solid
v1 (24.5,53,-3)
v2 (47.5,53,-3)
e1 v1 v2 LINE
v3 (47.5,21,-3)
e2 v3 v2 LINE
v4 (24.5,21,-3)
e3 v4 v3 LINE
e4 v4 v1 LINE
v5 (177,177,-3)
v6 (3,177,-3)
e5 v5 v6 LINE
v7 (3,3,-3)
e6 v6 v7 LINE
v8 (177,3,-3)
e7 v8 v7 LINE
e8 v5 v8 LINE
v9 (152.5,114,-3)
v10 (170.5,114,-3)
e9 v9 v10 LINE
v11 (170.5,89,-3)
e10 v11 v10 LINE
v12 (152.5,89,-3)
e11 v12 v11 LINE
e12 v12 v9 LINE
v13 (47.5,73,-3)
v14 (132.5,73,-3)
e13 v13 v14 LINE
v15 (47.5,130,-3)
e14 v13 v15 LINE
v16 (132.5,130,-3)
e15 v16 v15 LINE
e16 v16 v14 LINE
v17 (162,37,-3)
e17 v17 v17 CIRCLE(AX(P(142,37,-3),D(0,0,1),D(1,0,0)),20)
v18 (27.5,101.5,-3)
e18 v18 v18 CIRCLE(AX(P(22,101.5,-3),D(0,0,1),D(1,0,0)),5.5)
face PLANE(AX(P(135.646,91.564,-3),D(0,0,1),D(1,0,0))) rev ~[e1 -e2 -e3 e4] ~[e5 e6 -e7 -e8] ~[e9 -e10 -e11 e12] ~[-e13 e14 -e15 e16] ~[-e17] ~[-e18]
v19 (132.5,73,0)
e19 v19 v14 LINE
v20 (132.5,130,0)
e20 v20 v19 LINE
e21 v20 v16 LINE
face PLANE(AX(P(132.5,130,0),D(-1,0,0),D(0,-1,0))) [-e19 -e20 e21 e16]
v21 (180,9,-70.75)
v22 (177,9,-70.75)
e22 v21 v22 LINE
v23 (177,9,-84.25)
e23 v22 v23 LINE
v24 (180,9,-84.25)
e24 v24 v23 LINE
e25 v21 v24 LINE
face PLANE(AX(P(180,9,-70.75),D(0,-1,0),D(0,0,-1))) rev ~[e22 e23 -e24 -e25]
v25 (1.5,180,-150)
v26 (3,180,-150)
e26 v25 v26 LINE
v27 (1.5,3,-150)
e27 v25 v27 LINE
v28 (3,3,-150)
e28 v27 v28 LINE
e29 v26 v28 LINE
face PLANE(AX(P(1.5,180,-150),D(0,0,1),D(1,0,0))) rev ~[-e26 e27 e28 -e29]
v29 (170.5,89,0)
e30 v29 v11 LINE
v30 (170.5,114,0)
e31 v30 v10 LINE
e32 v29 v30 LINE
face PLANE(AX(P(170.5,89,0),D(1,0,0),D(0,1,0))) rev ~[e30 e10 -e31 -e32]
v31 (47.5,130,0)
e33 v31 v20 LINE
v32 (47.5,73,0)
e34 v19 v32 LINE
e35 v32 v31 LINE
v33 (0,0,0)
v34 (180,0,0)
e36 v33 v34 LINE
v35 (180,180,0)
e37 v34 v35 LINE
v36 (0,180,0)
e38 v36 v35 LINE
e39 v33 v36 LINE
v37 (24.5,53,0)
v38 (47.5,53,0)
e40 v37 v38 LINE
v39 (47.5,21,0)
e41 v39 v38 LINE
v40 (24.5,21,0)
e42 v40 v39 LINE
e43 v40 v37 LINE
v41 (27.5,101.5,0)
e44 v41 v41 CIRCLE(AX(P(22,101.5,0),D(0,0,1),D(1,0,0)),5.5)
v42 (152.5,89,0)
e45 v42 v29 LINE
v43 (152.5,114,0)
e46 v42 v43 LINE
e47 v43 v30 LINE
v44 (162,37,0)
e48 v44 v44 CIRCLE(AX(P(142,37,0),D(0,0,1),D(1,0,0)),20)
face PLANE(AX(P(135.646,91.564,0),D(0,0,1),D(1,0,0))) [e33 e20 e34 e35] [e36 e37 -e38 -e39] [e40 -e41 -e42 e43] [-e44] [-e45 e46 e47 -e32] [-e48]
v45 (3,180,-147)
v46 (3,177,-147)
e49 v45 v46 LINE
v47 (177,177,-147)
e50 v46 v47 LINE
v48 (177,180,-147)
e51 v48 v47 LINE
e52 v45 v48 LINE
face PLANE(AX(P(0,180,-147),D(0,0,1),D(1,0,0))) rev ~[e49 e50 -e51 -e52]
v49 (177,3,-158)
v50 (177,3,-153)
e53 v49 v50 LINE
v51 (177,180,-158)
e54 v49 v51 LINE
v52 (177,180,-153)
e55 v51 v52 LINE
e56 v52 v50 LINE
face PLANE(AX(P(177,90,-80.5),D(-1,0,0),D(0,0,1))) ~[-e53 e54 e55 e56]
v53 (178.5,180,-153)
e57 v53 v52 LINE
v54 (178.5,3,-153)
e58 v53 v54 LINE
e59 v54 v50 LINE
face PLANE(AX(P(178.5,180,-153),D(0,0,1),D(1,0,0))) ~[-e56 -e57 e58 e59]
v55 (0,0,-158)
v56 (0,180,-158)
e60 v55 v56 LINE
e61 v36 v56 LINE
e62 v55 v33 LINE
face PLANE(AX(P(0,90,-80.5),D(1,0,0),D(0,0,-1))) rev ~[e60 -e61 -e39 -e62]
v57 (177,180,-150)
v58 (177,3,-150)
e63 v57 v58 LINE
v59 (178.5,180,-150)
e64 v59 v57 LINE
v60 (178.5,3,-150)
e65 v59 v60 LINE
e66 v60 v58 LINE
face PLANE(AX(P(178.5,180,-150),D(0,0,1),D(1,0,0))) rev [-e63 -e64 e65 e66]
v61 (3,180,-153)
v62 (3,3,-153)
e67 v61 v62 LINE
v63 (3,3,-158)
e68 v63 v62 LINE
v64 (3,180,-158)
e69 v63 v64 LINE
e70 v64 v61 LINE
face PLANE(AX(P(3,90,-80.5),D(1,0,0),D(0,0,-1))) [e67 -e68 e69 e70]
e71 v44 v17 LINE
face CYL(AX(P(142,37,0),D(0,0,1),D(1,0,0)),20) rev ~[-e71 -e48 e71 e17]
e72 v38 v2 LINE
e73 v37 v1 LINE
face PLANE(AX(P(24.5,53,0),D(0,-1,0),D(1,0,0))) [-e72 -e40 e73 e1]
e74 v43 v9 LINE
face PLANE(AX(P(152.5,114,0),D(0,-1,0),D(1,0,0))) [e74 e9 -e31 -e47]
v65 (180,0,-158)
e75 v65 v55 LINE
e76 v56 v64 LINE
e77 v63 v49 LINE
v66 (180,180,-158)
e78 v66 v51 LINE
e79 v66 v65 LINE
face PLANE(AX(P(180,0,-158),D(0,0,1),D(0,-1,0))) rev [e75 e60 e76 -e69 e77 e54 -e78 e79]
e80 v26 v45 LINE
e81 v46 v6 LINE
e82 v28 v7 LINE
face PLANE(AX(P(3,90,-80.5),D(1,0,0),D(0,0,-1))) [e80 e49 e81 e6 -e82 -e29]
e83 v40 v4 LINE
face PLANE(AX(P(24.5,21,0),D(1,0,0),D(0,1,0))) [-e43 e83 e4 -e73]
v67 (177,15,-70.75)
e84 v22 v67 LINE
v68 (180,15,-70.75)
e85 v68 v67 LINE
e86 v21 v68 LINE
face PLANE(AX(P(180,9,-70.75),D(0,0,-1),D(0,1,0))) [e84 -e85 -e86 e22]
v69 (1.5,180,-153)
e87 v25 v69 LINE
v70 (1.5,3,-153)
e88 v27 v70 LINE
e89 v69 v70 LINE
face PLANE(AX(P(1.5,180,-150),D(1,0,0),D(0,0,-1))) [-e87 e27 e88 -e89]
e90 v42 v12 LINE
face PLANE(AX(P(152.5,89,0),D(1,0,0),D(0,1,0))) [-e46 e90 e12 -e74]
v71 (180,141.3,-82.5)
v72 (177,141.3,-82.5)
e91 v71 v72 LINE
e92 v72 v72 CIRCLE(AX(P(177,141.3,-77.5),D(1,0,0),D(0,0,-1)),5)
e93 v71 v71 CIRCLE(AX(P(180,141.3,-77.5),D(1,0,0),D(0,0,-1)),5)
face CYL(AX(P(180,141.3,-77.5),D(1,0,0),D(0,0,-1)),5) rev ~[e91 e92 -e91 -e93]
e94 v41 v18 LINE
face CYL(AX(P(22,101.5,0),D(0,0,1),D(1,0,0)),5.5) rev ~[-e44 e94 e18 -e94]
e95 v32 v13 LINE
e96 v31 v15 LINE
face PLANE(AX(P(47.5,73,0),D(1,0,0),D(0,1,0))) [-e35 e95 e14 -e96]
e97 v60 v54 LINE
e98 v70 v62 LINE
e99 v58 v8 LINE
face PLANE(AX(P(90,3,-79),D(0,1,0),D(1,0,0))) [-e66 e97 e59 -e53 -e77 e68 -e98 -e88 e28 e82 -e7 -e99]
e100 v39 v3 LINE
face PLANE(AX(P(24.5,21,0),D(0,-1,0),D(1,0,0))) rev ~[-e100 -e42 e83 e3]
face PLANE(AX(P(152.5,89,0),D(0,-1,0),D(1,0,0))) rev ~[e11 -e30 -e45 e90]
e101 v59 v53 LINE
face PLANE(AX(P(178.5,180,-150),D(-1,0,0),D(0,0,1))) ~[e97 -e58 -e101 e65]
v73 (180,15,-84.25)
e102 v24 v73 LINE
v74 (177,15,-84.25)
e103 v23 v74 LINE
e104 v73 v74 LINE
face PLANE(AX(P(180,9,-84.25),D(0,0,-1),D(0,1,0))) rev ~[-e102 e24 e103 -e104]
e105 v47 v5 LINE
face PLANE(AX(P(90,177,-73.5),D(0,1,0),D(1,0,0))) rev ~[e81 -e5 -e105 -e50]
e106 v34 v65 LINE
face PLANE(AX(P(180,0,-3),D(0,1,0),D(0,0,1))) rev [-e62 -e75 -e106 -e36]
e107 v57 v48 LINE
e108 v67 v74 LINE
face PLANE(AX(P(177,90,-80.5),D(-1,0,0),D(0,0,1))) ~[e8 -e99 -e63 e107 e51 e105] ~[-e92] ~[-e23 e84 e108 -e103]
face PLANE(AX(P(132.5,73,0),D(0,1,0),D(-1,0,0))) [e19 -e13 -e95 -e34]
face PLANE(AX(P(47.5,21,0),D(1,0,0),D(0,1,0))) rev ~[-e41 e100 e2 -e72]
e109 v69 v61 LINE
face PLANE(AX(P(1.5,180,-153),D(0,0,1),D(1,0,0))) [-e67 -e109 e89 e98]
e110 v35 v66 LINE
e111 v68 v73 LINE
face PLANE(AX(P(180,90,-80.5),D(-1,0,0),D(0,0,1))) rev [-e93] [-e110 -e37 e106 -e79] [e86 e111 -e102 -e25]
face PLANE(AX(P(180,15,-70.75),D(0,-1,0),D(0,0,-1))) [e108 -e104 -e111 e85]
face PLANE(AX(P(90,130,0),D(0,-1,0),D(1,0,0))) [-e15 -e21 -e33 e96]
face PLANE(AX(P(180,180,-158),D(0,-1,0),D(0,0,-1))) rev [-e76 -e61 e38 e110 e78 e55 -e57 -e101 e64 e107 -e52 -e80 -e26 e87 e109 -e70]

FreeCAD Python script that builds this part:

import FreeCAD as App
import Part
import Sketcher

doc = App.newDocument("Part")
body = doc.addObject("PartDesign::Body", "Body")

# Sketch on XY plane
sketch1 = body.newObject("Sketcher::SketchObject", "Sketch")
sketch1.AttachmentSupport = (doc.getObject("XY_Plane"), [""])
sketch1.MapMode = "FlatFace"
sketch1.addGeometry([
    Part.LineSegment(App.Vector(0, 180, 0), App.Vector(0, 0, 0)),  # 0
    Part.LineSegment(App.Vector(0, 0, 0), App.Vector(180, 0, 0)),  # 1
    Part.LineSegment(App.Vector(180, 0, 0), App.Vector(180, 180, 0)),  # 2
    Part.LineSegment(App.Vector(180, 180, 0), App.Vector(0, 180, 0)),  # 3
    Part.LineSegment(App.Vector(48, 130, 0), App.Vector(132, 130, 0)),  # 4
    Part.LineSegment(App.Vector(132, 130, 0), App.Vector(132, 73, 0)),  # 5
    Part.LineSegment(App.Vector(132, 73, 0), App.Vector(48, 73, 0)),  # 6
    Part.LineSegment(App.Vector(48, 73, 0), App.Vector(48, 130, 0)),  # 7
    Part.LineSegment(App.Vector(48, 21, 0), App.Vector(24, 21, 0)),  # 8
    Part.LineSegment(App.Vector(24, 21, 0), App.Vector(24, 53, 0)),  # 9
    Part.LineSegment(App.Vector(24, 53, 0), App.Vector(48, 53, 0)),  # 10
    Part.LineSegment(App.Vector(48, 53, 0), App.Vector(48, 21, 0)),  # 11
    Part.Circle(App.Vector(22, 102, 0), App.Vector(0, 0, 1), 6),  # 12
    Part.LineSegment(App.Vector(152, 89, 0), App.Vector(152, 114, 0)),  # 13
    Part.LineSegment(App.Vector(152, 114, 0), App.Vector(170, 114, 0)),  # 14
    Part.LineSegment(App.Vector(170, 114, 0), App.Vector(170, 89, 0)),  # 15
    Part.LineSegment(App.Vector(170, 89, 0), App.Vector(152, 89, 0)),  # 16
    Part.Circle(App.Vector(142, 37, 0), App.Vector(0, 0, 1), 20),  # 17
], False)
sketch1.addConstraint([
    Sketcher.Constraint("Coincident", 0, 2, 1, 1),
    Sketcher.Constraint("Coincident", 1, 2, 2, 1),
    Sketcher.Constraint("Coincident", 2, 2, 3, 1),
    Sketcher.Constraint("Coincident", 3, 2, 0, 1),
    Sketcher.Constraint("Coincident", 4, 2, 5, 1),
    Sketcher.Constraint("Coincident", 5, 2, 6, 1),
    Sketcher.Constraint("Coincident", 6, 2, 7, 1),
    Sketcher.Constraint("Coincident", 7, 2, 4, 1),
    Sketcher.Constraint("Coincident", 8, 2, 9, 1),
    Sketcher.Constraint("Coincident", 9, 2, 10, 1),
    Sketcher.Constraint("Coincident", 10, 2, 11, 1),
    Sketcher.Constraint("Coincident", 11, 2, 8, 1),
    Sketcher.Constraint("Coincident", 13, 2, 14, 1),
    Sketcher.Constraint("Coincident", 14, 2, 15, 1),
    Sketcher.Constraint("Coincident", 15, 2, 16, 1),
    Sketcher.Constraint("Coincident", 16, 2, 13, 1),
    Sketcher.Constraint("Vertical", 0),
    Sketcher.Constraint("Horizontal", 1),
    Sketcher.Constraint("Vertical", 2),
    Sketcher.Constraint("Horizontal", 3),
    Sketcher.Constraint("Horizontal", 4),
    Sketcher.Constraint("Vertical", 5),
    Sketcher.Constraint("Horizontal", 6),
    Sketcher.Constraint("Vertical", 7),
    Sketcher.Constraint("Horizontal", 8),
    Sketcher.Constraint("Vertical", 9),
    Sketcher.Constraint("Horizontal", 10),
    Sketcher.Constraint("Vertical", 11),
    Sketcher.Constraint("Vertical", 13),
    Sketcher.Constraint("Horizontal", 14),
    Sketcher.Constraint("Vertical", 15),
    Sketcher.Constraint("Horizontal", 16),
    Sketcher.Constraint("Coincident", 0, 2, -1, 1),
    Sketcher.Constraint("Vertical", 7, 2, 10, 2),
    Sketcher.Constraint("Equal", 3, 0),
    Sketcher.Constraint("Diameter", 12, 11.0),
    Sketcher.Constraint("Diameter", 17, 40.0),
    Sketcher.Constraint("DistanceX", 1, 1, 1, 2, 180.0),
    Sketcher.Constraint("DistanceX", 4, 1, 4, 2, 85.0),
    Sketcher.Constraint("DistanceX", 8, 2, 8, 1, 23.0),
    Sketcher.Constraint("DistanceX", 14, 1, 14, 2, 18.0),
    Sketcher.Constraint("DistanceY", 5, 2, 5, 1, 57.0),
    Sketcher.Constraint("DistanceY", 9, 1, 9, 2, 32.0),
    Sketcher.Constraint("DistanceY", 13, 1, 13, 2, 25.0),
    Sketcher.Constraint("DistanceX", -1, 1, 12, 3, 22.0),
    Sketcher.Constraint("DistanceX", -1, 1, 17, 3, 142.0),
    Sketcher.Constraint("DistanceY", -1, 1, 17, 3, 37.0),
    Sketcher.Constraint("DistanceY", -1, 1, 4, 2, 130.0),
    Sketcher.Constraint("DistanceY", -1, 1, 8, 2, 21.0),
    Sketcher.Constraint("DistanceY", -1, 1, 13, 2, 114.0),
    Sketcher.Constraint("DistanceX", 4, 2, 13, 2, 20.0),
    Sketcher.Constraint("DistanceY", -1, 1, 12, 3, 101.5),
    Sketcher.Constraint("DistanceX", -1, 1, 4, 2, 132.5),
])
pad1 = body.newObject("PartDesign::Pad", "Pad")
pad1.Profile = sketch1
pad1.Length = 3
pad1.Reversed = True

# Sketch on YZ plane
sketch2 = body.newObject("Sketcher::SketchObject", "Sketch001")
sketch2.AttachmentSupport = (doc.getObject("YZ_Plane"), [""])
sketch2.MapMode = "FlatFace"
sketch2.addGeometry([
    Part.LineSegment(App.Vector(180, -158, 0), App.Vector(180, -3, 0)),
    Part.LineSegment(App.Vector(180, -3, 0), App.Vector(0, -3, 0)),
    Part.LineSegment(App.Vector(0, -3, 0), App.Vector(0, -158, 0)),
    Part.LineSegment(App.Vector(0, -158, 0), App.Vector(180, -158, 0)),
], False)
sketch2.addConstraint([
    Sketcher.Constraint("Coincident", 0, 2, 1, 1),
    Sketcher.Constraint("Coincident", 1, 2, 2, 1),
    Sketcher.Constraint("Coincident", 2, 2, 3, 1),
    Sketcher.Constraint("Coincident", 3, 2, 0, 1),
    Sketcher.Constraint("Vertical", 0),
    Sketcher.Constraint("Horizontal", 1),
    Sketcher.Constraint("Vertical", 2),
    Sketcher.Constraint("Horizontal", 3),
    Sketcher.Constraint("PointOnObject", 1, 2, -2),
    Sketcher.Constraint("DistanceX", 1, 2, 1, 1, 180.0),
    Sketcher.Constraint("DistanceY", 0, 1, 0, 2, 155.0),
    Sketcher.Constraint("DistanceY", 0, 2, -1, 1, 3.0),
])
pad2 = body.newObject("PartDesign::Pad", "Pad001")
pad2.Profile = sketch2
pad2.Length = 3
doc.recompute()

datumplane = body.newObject("PartDesign::Plane", "DatumPlane")
datumplane.AttachmentSupport = (doc.getObject("YZ_Plane"), [""])
datumplane.MapMode = "FlatFace"
datumplane.AttachmentOffset = App.Placement(App.Vector(0, 0, 90), App.Rotation())
mirrored = body.newObject("PartDesign::Mirrored", "Mirrored")
mirrored.Originals = [pad2]
mirrored.MirrorPlane = (datumplane, [""])
body.Tip = mirrored

# Sketch on XZ plane
sketch3 = body.newObject("Sketcher::SketchObject", "Sketch002")
sketch3.AttachmentSupport = (doc.getObject("XZ_Plane"), [""])
sketch3.MapMode = "FlatFace"
sketch3.addGeometry([
    Part.LineSegment(App.Vector(0, -158, 0), App.Vector(0, 0, 0)),
    Part.LineSegment(App.Vector(0, 0, 0), App.Vector(180, 0, 0)),
    Part.LineSegment(App.Vector(180, 0, 0), App.Vector(180, -158, 0)),
    Part.LineSegment(App.Vector(180, -158, 0), App.Vector(0, -158, 0)),
], False)
sketch3.addConstraint([
    Sketcher.Constraint("Coincident", 0, 2, 1, 1),
    Sketcher.Constraint("Coincident", 1, 2, 2, 1),
    Sketcher.Constraint("Coincident", 2, 2, 3, 1),
    Sketcher.Constraint("Coincident", 3, 2, 0, 1),
    Sketcher.Constraint("Vertical", 0),
    Sketcher.Constraint("Horizontal", 1),
    Sketcher.Constraint("Vertical", 2),
    Sketcher.Constraint("Horizontal", 3),
    Sketcher.Constraint("Coincident", 0, 2, -1, 1),
    Sketcher.Constraint("DistanceX", 1, 1, 1, 2, 180.0),
    Sketcher.Constraint("DistanceY", 0, 1, 0, 2, 158.0),
])
pad3 = body.newObject("PartDesign::Pad", "Pad002")
pad3.Profile = sketch3
pad3.Length = 3
pad3.Reversed = True

# Sketch on XZ plane
sketch4 = body.newObject("Sketcher::SketchObject", "Sketch003")
sketch4.AttachmentSupport = (doc.getObject("XZ_Plane"), [""])
sketch4.MapMode = "FlatFace"
sketch4.AttachmentOffset = App.Placement(App.Vector(0, 0, -180), App.Rotation())
sketch4.addGeometry([
    Part.LineSegment(App.Vector(1.5, -153, 0), App.Vector(1.5, -150, 0)),
    Part.LineSegment(App.Vector(1.5, -150, 0), App.Vector(3, -150, 0)),
    Part.LineSegment(App.Vector(3, -150, 0), App.Vector(3, -153, 0)),
    Part.LineSegment(App.Vector(3, -153, 0), App.Vector(1.5, -153, 0)),
], False)
sketch4.addConstraint([
    Sketcher.Constraint("Coincident", 0, 2, 1, 1),
    Sketcher.Constraint("Coincident", 1, 2, 2, 1),
    Sketcher.Constraint("Coincident", 2, 2, 3, 1),
    Sketcher.Constraint("Coincident", 3, 2, 0, 1),
    Sketcher.Constraint("Vertical", 0),
    Sketcher.Constraint("Horizontal", 1),
    Sketcher.Constraint("Vertical", 2),
    Sketcher.Constraint("Horizontal", 3),
    Sketcher.Constraint("DistanceY", 0, 1, 0, 2, 3.0),
    Sketcher.Constraint("DistanceX", 1, 1, 1, 2, 1.5),
    Sketcher.Constraint("DistanceY", 0, 2, -1, 1, 150.0),
    Sketcher.Constraint("DistanceX", -1, 1, 1, 2, 3.0),
])
pocket1 = body.newObject("PartDesign::Pocket", "Pocket")
pocket1.Profile = sketch4
pocket1.Length = 177
pocket1.Reversed = True
doc.recompute()

datumplane2 = body.newObject("PartDesign::Plane", "DatumPlane001")
datumplane2.AttachmentSupport = (doc.getObject("YZ_Plane"), [""])
datumplane2.MapMode = "FlatFace"
datumplane2.AttachmentOffset = App.Placement(App.Vector(0, 0, 90), App.Rotation())
mirrored2 = body.newObject("PartDesign::Mirrored", "Mirrored001")
mirrored2.Originals = [pocket1]
mirrored2.MirrorPlane = (datumplane2, [""])
body.Tip = mirrored2

# Sketch on XZ plane
sketch5 = body.newObject("Sketcher::SketchObject", "Sketch004")
sketch5.AttachmentSupport = (doc.getObject("XZ_Plane"), [""])
sketch5.MapMode = "FlatFace"
sketch5.AttachmentOffset = App.Placement(App.Vector(0, 0, -180), App.Rotation())
sketch5.addGeometry([
    Part.LineSegment(App.Vector(0, -147, 0), App.Vector(0, 0, 0)),
    Part.LineSegment(App.Vector(0, 0, 0), App.Vector(180, 0, 0)),
    Part.LineSegment(App.Vector(180, 0, 0), App.Vector(180, -147, 0)),
    Part.LineSegment(App.Vector(180, -147, 0), App.Vector(0, -147, 0)),
], False)
sketch5.addConstraint([
    Sketcher.Constraint("Coincident", 0, 2, 1, 1),
    Sketcher.Constraint("Coincident", 1, 2, 2, 1),
    Sketcher.Constraint("Coincident", 2, 2, 3, 1),
    Sketcher.Constraint("Coincident", 3, 2, 0, 1),
    Sketcher.Constraint("Vertical", 0),
    Sketcher.Constraint("Horizontal", 1),
    Sketcher.Constraint("Vertical", 2),
    Sketcher.Constraint("Horizontal", 3),
    Sketcher.Constraint("Coincident", 0, 2, -1, 1),
    Sketcher.Constraint("DistanceX", 1, 1, 1, 2, 180.0),
    Sketcher.Constraint("DistanceY", 0, 1, 0, 2, 147.0),
])
pad4 = body.newObject("PartDesign::Pad", "Pad003")
pad4.Profile = sketch5
pad4.Length = 3

# Sketch on YZ plane
sketch6 = body.newObject("Sketcher::SketchObject", "Sketch005")
sketch6.AttachmentSupport = (doc.getObject("YZ_Plane"), [""])
sketch6.MapMode = "FlatFace"
sketch6.AttachmentOffset = App.Placement(App.Vector(0, 0, 180), App.Rotation())
sketch6.addGeometry([
    Part.Circle(App.Vector(141, -78, 0), App.Vector(0, 0, 1), 5),  # 0
    Part.LineSegment(App.Vector(15, -71, 0), App.Vector(9, -71, 0)),  # 1
    Part.LineSegment(App.Vector(9, -71, 0), App.Vector(9, -84, 0)),  # 2
    Part.LineSegment(App.Vector(9, -84, 0), App.Vector(15, -84, 0)),  # 3
    Part.LineSegment(App.Vector(15, -84, 0), App.Vector(15, -71, 0)),  # 4
], False)
sketch6.addConstraint([
    Sketcher.Constraint("Coincident", 1, 2, 2, 1),
    Sketcher.Constraint("Coincident", 2, 2, 3, 1),
    Sketcher.Constraint("Coincident", 3, 2, 4, 1),
    Sketcher.Constraint("Coincident", 4, 2, 1, 1),
    Sketcher.Constraint("Horizontal", 1),
    Sketcher.Constraint("Vertical", 2),
    Sketcher.Constraint("Horizontal", 3),
    Sketcher.Constraint("Vertical", 4),
    Sketcher.Constraint("Diameter", 0, 10.0),
    Sketcher.Constraint("DistanceX", 1, 2, 1, 1, 6.0),
    Sketcher.Constraint("DistanceY", 2, 2, 2, 1, 13.5),
    Sketcher.Constraint("DistanceX", -1, 1, 1, 2, 9.0),
    Sketcher.Constraint("DistanceX", -1, 1, 0, 3, 141.3),
    Sketcher.Constraint("DistanceY", 0, 3, -1, 1, 77.5),
    Sketcher.Constraint("DistanceY", 1, 2, -1, 1, 70.75),
])
pocket2 = body.newObject("PartDesign::Pocket", "Pocket001")
pocket2.Profile = sketch6
pocket2.Length = 10

doc.recompute()
